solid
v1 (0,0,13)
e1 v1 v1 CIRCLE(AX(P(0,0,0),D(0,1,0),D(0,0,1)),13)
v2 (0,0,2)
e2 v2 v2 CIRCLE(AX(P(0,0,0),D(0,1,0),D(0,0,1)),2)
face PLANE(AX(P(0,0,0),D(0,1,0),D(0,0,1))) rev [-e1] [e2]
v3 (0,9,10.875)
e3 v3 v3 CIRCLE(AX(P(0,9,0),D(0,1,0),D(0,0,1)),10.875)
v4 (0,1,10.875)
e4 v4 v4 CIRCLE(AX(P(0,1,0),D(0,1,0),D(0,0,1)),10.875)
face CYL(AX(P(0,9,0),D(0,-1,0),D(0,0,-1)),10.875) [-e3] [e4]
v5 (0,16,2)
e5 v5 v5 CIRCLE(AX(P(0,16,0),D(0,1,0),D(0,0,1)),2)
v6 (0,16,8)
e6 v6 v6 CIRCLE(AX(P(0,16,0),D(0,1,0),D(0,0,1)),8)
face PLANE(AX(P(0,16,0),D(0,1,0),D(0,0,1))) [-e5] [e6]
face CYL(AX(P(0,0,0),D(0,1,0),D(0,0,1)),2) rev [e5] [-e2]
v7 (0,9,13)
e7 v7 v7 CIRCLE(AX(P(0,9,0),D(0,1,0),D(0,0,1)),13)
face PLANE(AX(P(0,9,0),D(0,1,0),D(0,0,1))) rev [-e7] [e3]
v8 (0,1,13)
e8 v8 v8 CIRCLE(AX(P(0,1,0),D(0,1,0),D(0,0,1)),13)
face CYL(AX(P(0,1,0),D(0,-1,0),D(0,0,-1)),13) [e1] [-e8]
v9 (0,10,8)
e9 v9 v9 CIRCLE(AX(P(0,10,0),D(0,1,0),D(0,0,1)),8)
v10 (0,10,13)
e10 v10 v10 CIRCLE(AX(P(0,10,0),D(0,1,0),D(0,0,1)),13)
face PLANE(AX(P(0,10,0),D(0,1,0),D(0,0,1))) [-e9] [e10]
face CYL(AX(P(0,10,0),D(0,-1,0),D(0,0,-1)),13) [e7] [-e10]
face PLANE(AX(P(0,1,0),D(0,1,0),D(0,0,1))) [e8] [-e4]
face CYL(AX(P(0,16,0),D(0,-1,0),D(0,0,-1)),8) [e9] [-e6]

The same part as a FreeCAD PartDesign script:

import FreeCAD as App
import Part
import Sketcher
from FreeCAD import Vector
Q = App.Units.Quantity

doc = App.newDocument("Part")
params = doc.addObject("Spreadsheet::Sheet", "Params")
for row, (alias, value) in enumerate([
    ("sketch1_diameter", "26 mm"),
    ("pad1_length", "1 mm"),
    ("sketch2_diameter", "21.75 mm"),
    ("pad2_length", "8 mm"),
    ("sketch3_diameter", "26 mm"),
    ("pad3_length", "1 mm"),
    ("sketch4_diameter", "16 mm"),
    ("pad4_length", "6 mm"),
    ("sketch5_diameter", "4 mm"),
], start=1):
    params.set(f"A{row}", alias)
    params.set(f"B{row}", "=" + value)
    params.setAlias(f"B{row}", alias)

body = doc.addObject("PartDesign::Body", "Body")

sketch1 = doc.addObject("Sketcher::SketchObject", "Sketch")
body.addObject(sketch1)
sketch1.AttachmentSupport = (doc.XZ_Plane, [""])
sketch1.MapMode = "FlatFace"
sketch1.addGeometry(Part.Circle(Vector(0, 0, 0), Vector(0, 0, 1), 13), False)
sketch1.addConstraint([
    Sketcher.Constraint("Coincident", 0, 3, -1, 1),
    Sketcher.Constraint("Diameter", 0, Q("26 mm")),
])
sketch1.setExpression("Constraints[1]", "Params.sketch1_diameter")
pad1 = doc.addObject("PartDesign::Pad", "Pad")
body.addObject(pad1)
pad1.Profile = sketch1
pad1.setExpression("Length", "Params.pad1_length")
pad1.Reversed = True

sketch2 = doc.addObject("Sketcher::SketchObject", "Sketch001")
body.addObject(sketch2)
sketch2.AttachmentSupport = (doc.XZ_Plane, [""])
sketch2.MapMode = "FlatFace"
sketch2.AttachmentOffset = App.Placement(Vector(0, 0, -1), App.Rotation())
sketch2.addGeometry(Part.Circle(Vector(0, 0, 0), Vector(0, 0, 1), 11), False)
sketch2.addConstraint([
    Sketcher.Constraint("Coincident", 0, 3, -1, 1),
    Sketcher.Constraint("Diameter", 0, Q("21.75 mm")),
])
sketch2.setExpression("Constraints[1]", "Params.sketch2_diameter")
pad2 = doc.addObject("PartDesign::Pad", "Pad001")
body.addObject(pad2)
pad2.Profile = sketch2
pad2.setExpression("Length", "Params.pad2_length")
pad2.Reversed = True

sketch3 = doc.addObject("Sketcher::SketchObject", "Sketch002")
body.addObject(sketch3)
sketch3.AttachmentSupport = (doc.XZ_Plane, [""])
sketch3.MapMode = "FlatFace"
sketch3.AttachmentOffset = App.Placement(Vector(0, 0, -9), App.Rotation())
sketch3.addGeometry(Part.Circle(Vector(0, 0, 0), Vector(0, 0, 1), 13), False)
sketch3.addConstraint([
    Sketcher.Constraint("Coincident", 0, 3, -1, 1),
    Sketcher.Constraint("Diameter", 0, Q("26 mm")),
])
sketch3.setExpression("Constraints[1]", "Params.sketch3_diameter")
pad3 = doc.addObject("PartDesign::Pad", "Pad002")
body.addObject(pad3)
pad3.Profile = sketch3
pad3.setExpression("Length", "Params.pad3_length")
pad3.Reversed = True

sketch4 = doc.addObject("Sketcher::SketchObject", "Sketch003")
body.addObject(sketch4)
sketch4.AttachmentSupport = (doc.XZ_Plane, [""])
sketch4.MapMode = "FlatFace"
sketch4.AttachmentOffset = App.Placement(Vector(0, 0, -10), App.Rotation())
sketch4.addGeometry(Part.Circle(Vector(0, 0, 0), Vector(0, 0, 1), 8), False)
sketch4.addConstraint([
    Sketcher.Constraint("Coincident", 0, 3, -1, 1),
    Sketcher.Constraint("Diameter", 0, Q("16 mm")),
])
sketch4.setExpression("Constraints[1]", "Params.sketch4_diameter")
pad4 = doc.addObject("PartDesign::Pad", "Pad003")
body.addObject(pad4)
pad4.Profile = sketch4
pad4.setExpression("Length", "Params.pad4_length")
pad4.Reversed = True

sketch5 = doc.addObject("Sketcher::SketchObject", "Sketch004")
body.addObject(sketch5)
sketch5.AttachmentSupport = (doc.XZ_Plane, [""])
sketch5.MapMode = "FlatFace"
sketch5.AttachmentOffset = App.Placement(Vector(0, 0, -16), App.Rotation())
sketch5.addGeometry(Part.Circle(Vector(0, 0, 0), Vector(0, 0, 1), 2), False)
sketch5.addConstraint([
    Sketcher.Constraint("Coincident", 0, 3, -1, 1),
    Sketcher.Constraint("Diameter", 0, Q("4 mm")),
])
sketch5.setExpression("Constraints[1]", "Params.sketch5_diameter")
pocket1 = doc.addObject("PartDesign::Pocket", "Pocket")
body.addObject(pocket1)
pocket1.Profile = sketch5
pocket1.Type = "ThroughAll"
pocket1.Reversed = True

doc.recompute()
